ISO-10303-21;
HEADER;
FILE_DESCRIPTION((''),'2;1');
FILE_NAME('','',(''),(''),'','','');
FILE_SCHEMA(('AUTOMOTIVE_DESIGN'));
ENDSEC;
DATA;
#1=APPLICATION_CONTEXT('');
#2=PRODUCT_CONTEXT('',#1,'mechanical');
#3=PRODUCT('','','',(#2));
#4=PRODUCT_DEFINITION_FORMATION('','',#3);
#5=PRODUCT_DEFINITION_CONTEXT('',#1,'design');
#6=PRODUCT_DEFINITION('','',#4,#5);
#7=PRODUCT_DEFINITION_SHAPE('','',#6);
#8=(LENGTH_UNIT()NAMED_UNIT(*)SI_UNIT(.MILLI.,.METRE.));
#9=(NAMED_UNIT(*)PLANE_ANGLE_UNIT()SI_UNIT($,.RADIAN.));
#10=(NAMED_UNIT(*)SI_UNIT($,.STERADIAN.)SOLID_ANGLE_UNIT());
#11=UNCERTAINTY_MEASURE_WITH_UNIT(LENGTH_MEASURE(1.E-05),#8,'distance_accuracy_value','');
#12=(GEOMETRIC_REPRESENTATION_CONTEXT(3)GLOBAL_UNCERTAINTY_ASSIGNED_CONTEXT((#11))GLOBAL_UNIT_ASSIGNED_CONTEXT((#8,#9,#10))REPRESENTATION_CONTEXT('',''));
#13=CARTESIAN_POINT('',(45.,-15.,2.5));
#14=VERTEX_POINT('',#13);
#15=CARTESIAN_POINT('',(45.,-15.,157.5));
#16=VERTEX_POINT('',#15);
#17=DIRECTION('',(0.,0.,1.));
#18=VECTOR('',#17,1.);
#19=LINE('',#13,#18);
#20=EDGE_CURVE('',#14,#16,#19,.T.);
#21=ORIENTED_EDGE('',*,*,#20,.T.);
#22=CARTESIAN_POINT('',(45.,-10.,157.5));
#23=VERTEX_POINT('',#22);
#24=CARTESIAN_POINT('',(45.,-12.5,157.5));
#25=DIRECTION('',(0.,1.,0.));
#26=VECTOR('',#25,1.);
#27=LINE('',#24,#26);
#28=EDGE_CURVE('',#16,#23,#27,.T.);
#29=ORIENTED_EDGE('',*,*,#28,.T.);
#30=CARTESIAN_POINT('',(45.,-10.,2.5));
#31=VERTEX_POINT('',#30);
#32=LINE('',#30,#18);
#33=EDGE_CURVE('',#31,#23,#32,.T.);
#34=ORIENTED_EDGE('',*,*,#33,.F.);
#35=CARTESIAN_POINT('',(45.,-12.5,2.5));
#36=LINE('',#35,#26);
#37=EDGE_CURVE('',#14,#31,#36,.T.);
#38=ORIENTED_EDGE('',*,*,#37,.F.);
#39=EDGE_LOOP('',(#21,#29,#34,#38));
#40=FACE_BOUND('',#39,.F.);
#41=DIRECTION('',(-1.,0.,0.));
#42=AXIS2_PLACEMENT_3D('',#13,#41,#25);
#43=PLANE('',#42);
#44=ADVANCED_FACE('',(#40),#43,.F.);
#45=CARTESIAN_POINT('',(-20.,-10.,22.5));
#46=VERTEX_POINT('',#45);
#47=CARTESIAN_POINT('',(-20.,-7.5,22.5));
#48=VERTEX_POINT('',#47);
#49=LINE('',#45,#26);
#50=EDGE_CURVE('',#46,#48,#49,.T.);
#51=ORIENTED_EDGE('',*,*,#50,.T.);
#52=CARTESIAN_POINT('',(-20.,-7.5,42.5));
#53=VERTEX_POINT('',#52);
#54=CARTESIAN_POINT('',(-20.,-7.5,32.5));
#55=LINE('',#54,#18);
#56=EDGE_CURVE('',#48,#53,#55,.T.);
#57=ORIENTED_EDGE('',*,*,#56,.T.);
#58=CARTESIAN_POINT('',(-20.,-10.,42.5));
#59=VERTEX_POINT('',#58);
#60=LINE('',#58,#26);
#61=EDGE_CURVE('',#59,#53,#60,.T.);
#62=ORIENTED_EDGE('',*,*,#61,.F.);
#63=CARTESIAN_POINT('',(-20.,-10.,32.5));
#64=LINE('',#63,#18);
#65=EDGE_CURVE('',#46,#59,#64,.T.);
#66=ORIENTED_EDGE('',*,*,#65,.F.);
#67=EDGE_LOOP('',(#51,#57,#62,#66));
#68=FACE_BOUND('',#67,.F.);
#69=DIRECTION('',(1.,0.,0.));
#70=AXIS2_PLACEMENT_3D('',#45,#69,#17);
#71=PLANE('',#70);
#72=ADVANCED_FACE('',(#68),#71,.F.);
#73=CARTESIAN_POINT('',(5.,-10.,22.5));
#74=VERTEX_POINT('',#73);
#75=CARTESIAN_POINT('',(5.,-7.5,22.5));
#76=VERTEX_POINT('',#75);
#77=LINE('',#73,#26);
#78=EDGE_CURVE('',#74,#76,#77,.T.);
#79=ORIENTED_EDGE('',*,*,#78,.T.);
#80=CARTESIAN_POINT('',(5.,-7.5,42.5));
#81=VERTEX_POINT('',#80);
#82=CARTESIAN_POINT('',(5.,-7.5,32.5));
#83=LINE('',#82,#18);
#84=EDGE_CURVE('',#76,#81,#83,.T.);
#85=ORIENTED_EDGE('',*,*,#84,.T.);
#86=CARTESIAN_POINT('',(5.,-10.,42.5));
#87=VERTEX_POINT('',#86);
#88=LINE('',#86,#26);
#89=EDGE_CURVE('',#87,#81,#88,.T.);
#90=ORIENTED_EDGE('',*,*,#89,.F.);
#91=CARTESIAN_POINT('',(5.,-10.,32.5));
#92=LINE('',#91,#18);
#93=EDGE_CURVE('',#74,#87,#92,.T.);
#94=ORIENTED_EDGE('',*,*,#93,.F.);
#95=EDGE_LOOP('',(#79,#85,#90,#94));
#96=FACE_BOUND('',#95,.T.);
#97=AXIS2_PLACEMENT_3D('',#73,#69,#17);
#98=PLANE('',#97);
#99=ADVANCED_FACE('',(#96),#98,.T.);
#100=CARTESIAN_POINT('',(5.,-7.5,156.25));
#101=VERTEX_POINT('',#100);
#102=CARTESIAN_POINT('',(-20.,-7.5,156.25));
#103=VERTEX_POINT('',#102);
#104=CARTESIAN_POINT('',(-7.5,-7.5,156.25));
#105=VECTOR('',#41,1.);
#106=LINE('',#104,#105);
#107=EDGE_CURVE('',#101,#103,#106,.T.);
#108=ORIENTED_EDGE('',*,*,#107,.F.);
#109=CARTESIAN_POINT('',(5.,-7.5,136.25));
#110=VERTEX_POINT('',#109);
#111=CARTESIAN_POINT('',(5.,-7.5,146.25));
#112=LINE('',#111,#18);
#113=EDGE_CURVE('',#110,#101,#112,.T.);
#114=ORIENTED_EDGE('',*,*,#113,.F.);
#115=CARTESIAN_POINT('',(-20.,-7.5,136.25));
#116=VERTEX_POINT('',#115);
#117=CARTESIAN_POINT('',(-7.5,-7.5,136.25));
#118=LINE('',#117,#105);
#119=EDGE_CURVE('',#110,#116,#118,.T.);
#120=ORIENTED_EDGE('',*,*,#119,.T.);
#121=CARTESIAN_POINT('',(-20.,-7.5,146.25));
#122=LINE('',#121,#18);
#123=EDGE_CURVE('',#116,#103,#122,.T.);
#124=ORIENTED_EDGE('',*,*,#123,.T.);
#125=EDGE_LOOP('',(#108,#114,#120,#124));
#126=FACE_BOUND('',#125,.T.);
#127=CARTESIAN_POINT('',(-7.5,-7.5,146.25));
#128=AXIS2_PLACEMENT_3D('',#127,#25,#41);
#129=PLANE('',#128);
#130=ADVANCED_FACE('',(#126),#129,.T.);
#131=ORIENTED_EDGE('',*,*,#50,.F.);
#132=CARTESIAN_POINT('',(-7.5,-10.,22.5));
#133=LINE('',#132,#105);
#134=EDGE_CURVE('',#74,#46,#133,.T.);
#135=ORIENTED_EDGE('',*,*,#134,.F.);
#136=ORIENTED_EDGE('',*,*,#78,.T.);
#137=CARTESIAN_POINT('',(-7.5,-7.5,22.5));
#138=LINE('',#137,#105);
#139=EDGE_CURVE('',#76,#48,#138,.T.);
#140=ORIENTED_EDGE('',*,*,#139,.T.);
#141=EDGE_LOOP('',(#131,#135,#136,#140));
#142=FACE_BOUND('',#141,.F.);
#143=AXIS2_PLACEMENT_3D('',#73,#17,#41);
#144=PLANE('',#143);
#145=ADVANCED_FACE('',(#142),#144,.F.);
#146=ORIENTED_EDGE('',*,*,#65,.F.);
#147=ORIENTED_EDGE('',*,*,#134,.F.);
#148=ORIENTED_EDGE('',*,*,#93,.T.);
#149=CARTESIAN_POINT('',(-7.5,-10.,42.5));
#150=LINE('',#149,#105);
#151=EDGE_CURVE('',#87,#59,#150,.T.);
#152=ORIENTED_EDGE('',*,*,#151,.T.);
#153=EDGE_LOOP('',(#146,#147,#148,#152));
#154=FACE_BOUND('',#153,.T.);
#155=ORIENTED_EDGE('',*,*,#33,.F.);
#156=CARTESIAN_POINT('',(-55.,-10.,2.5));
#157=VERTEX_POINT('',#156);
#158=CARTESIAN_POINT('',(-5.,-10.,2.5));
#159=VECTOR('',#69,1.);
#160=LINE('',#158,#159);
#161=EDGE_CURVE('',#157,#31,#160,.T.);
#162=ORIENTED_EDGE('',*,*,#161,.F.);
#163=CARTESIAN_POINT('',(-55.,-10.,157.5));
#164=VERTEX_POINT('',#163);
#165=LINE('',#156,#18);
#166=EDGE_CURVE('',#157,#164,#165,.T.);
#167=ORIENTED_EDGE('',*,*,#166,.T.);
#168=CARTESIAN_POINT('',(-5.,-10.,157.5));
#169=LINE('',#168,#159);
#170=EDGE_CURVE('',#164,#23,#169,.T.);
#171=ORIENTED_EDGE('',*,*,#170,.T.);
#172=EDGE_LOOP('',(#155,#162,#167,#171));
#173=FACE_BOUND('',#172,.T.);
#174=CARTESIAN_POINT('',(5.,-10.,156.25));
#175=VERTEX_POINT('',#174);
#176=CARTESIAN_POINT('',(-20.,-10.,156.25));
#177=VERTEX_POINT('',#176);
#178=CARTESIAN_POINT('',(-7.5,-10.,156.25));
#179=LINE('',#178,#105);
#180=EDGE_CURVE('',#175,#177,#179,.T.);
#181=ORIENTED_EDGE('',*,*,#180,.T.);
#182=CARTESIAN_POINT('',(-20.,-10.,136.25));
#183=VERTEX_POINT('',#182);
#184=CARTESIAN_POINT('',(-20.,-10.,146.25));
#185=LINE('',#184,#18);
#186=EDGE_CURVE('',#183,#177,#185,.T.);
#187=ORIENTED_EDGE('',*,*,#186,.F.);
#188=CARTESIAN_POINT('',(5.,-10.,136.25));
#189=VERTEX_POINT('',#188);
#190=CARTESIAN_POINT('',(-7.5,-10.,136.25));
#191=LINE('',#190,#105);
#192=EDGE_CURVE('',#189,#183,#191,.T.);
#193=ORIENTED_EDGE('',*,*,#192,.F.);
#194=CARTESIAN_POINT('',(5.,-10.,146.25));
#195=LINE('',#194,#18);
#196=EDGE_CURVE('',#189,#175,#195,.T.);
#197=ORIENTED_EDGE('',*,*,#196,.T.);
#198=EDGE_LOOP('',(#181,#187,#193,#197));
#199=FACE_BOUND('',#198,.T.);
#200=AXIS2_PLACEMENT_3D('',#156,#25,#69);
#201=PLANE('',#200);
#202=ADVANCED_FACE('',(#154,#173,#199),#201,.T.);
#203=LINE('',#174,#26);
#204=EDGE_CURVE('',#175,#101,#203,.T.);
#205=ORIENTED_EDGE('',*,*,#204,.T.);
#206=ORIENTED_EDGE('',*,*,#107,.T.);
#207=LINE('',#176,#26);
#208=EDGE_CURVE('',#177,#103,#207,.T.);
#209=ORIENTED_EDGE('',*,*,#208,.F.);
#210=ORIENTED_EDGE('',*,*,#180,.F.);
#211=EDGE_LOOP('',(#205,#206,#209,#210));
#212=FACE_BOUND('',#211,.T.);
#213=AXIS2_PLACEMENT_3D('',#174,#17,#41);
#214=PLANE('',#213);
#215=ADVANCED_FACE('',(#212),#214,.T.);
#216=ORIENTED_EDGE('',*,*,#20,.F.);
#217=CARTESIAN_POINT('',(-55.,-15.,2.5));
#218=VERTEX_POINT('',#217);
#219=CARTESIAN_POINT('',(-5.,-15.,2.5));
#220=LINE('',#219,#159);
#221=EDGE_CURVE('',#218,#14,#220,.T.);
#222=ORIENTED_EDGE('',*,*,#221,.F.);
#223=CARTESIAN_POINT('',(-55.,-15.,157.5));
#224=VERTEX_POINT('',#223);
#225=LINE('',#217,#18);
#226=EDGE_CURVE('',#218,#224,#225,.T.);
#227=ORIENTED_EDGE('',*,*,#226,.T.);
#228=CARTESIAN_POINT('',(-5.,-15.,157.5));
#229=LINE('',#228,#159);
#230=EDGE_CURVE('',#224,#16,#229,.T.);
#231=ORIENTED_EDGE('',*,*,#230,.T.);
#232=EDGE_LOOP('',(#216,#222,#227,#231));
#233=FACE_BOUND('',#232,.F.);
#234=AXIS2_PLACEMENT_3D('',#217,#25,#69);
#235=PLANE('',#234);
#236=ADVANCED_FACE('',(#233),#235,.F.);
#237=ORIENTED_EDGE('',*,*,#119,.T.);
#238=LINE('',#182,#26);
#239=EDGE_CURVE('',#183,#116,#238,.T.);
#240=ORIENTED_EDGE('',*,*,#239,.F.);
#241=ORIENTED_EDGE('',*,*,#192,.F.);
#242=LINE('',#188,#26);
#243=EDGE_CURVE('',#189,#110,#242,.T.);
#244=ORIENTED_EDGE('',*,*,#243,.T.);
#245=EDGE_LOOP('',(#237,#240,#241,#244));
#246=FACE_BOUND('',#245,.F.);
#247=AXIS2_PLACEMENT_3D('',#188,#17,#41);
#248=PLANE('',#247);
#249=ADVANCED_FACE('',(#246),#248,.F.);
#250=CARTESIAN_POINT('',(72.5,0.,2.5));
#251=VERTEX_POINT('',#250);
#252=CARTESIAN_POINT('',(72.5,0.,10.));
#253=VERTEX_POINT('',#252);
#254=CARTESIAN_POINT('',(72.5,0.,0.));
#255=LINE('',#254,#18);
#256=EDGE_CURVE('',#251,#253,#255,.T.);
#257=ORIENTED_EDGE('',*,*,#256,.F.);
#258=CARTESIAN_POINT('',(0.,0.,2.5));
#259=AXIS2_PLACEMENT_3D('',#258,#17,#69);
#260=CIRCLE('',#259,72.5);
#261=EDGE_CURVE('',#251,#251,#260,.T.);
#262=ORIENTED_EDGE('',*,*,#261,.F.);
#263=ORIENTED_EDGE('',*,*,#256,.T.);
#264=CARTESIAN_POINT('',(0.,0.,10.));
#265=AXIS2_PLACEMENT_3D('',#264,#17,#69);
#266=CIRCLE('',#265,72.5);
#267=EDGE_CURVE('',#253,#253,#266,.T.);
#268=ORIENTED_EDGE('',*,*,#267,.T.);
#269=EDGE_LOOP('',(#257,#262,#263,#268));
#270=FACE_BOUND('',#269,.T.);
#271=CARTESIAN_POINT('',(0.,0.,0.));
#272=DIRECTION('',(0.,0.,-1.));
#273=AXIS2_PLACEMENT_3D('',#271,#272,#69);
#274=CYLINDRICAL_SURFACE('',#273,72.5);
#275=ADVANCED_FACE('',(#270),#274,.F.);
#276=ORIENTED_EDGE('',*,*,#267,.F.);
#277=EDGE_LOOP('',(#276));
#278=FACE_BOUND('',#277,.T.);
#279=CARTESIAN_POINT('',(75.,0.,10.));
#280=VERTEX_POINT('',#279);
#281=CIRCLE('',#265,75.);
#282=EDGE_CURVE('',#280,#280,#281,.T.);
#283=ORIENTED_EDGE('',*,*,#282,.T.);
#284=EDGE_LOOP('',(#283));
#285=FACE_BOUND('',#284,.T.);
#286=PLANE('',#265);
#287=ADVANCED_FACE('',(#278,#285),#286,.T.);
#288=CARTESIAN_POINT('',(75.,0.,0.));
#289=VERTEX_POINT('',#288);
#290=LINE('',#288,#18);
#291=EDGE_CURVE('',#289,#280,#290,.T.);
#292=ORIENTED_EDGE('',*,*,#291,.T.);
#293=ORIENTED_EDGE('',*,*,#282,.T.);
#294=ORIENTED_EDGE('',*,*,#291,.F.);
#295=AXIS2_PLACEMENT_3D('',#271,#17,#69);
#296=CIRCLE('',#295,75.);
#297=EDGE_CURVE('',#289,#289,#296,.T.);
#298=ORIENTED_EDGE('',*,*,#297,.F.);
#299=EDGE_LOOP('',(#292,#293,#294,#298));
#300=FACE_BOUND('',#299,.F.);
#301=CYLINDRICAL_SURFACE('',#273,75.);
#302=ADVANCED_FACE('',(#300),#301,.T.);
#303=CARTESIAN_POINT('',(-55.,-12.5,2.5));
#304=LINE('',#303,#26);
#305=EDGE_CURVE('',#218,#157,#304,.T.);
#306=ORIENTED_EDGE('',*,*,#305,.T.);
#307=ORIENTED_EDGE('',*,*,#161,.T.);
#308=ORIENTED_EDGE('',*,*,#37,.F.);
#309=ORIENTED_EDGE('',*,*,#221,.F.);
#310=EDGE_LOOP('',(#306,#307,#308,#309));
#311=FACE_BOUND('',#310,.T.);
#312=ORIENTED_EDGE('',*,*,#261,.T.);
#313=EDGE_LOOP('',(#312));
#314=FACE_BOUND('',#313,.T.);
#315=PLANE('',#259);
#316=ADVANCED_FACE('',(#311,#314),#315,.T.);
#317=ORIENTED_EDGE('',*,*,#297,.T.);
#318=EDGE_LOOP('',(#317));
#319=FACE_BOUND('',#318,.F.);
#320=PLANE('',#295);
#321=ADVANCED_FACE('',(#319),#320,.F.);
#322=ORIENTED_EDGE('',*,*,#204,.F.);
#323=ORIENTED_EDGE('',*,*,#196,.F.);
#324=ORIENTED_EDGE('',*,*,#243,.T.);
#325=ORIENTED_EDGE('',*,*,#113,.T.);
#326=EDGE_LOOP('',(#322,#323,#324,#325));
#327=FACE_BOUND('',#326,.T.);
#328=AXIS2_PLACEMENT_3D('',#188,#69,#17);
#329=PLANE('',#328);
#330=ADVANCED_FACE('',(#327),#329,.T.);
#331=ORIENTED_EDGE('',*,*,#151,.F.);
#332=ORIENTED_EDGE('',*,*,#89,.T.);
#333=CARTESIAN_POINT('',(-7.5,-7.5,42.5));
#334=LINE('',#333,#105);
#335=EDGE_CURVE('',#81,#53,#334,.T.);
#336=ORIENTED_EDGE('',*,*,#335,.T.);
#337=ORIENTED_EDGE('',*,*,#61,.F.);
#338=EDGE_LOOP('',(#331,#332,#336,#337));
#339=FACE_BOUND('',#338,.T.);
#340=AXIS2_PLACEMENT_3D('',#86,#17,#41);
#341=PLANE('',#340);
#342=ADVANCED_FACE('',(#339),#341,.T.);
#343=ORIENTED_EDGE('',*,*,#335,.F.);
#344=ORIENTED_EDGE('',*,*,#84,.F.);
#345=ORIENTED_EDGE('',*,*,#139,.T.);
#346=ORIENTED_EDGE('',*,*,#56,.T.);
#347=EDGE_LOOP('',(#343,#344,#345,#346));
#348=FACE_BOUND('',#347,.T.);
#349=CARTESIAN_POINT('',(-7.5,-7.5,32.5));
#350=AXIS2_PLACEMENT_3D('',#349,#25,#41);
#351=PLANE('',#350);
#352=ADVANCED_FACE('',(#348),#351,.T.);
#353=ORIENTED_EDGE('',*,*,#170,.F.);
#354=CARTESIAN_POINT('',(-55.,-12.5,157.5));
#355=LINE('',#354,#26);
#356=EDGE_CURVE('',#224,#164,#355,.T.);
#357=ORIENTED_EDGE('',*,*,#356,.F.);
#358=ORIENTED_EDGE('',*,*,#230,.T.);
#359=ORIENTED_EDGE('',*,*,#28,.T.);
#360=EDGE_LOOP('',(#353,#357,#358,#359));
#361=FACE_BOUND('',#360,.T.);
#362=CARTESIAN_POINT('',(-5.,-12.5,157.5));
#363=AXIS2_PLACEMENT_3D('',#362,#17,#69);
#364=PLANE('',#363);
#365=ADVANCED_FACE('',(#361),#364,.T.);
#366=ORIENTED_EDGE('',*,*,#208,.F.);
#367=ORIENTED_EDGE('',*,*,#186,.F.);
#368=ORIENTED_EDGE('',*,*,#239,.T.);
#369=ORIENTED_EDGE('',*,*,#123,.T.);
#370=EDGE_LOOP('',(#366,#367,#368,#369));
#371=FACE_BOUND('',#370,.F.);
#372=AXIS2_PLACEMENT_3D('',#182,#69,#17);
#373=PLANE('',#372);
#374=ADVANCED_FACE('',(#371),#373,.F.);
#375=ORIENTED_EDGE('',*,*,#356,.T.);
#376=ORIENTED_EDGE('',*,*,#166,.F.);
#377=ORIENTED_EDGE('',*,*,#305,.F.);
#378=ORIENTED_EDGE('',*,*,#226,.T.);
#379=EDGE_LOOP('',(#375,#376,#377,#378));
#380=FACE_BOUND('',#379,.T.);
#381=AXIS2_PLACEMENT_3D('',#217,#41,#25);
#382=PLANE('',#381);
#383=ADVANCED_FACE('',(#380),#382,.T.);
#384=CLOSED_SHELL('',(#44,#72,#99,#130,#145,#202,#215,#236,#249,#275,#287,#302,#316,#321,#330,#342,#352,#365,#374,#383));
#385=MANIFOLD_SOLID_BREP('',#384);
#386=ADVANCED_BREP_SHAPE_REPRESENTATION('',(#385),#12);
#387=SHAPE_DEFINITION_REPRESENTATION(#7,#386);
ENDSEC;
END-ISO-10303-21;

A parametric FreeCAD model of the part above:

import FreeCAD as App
import Part
import Sketcher

V = App.Vector

doc = App.newDocument("Part")
body = doc.addObject("PartDesign::Body", "Body")

# Sketch on XY plane
sketch1 = doc.addObject("Sketcher::SketchObject", "Sketch")
body.addObject(sketch1)
sketch1.AttachmentSupport = (doc.XY_Plane, [""])
sketch1.MapMode = "FlatFace"
sketch1.addGeometry(Part.Circle(V(0, 0, 0), V(0, 0, 1), 75), False)
sketch1.addGeometry(Part.Circle(V(0, 0, 0), V(0, 0, 1), 72), False)
sketch1.addConstraint(Sketcher.Constraint("Coincident", 0, 3, -1, 1))
sketch1.addConstraint(Sketcher.Constraint("Coincident", 1, 3, -1, 1))
sketch1.addConstraint(Sketcher.Constraint("Diameter", 0, 150.0))
sketch1.addConstraint(Sketcher.Constraint("Diameter", 1, 145.0))
pad1 = doc.addObject("PartDesign::Pad", "Pad")
body.addObject(pad1)
pad1.Profile = sketch1
pad1.Length = 10

# Sketch on XY plane
sketch2 = doc.addObject("Sketcher::SketchObject", "Sketch001")
body.addObject(sketch2)
sketch2.AttachmentSupport = (doc.XY_Plane, [""])
sketch2.MapMode = "FlatFace"
sketch2.addGeometry(Part.Circle(V(0, 0, 0), V(0, 0, 1), 72), False)
sketch2.addConstraint(Sketcher.Constraint("Coincident", 0, 3, -1, 1))
sketch2.addConstraint(Sketcher.Constraint("Diameter", 0, 145.0))
pad2 = doc.addObject("PartDesign::Pad", "Pad001")
body.addObject(pad2)
pad2.Profile = sketch2
pad2.Length = 2.5

# Sketch on XY plane
sketch3 = doc.addObject("Sketcher::SketchObject", "Sketch002")
body.addObject(sketch3)
sketch3.AttachmentSupport = (doc.XY_Plane, [""])
sketch3.MapMode = "FlatFace"
sketch3.AttachmentOffset = App.Placement(V(0, 0, 2.5), App.Rotation())
sketch3.addGeometry(Part.LineSegment(V(-55, -10, 0), V(-55, -15, 0)), False)
sketch3.addGeometry(Part.LineSegment(V(-55, -15, 0), V(45, -15, 0)), False)
sketch3.addGeometry(Part.LineSegment(V(45, -15, 0), V(45, -10, 0)), False)
sketch3.addGeometry(Part.LineSegment(V(45, -10, 0), V(-55, -10, 0)), False)
sketch3.addConstraint(Sketcher.Constraint("Coincident", 0, 2, 1, 1))
sketch3.addConstraint(Sketcher.Constraint("Coincident", 1, 2, 2, 1))
sketch3.addConstraint(Sketcher.Constraint("Coincident", 2, 2, 3, 1))
sketch3.addConstraint(Sketcher.Constraint("Coincident", 3, 2, 0, 1))
sketch3.addConstraint(Sketcher.Constraint("Vertical", 0))
sketch3.addConstraint(Sketcher.Constraint("Horizontal", 1))
sketch3.addConstraint(Sketcher.Constraint("Vertical", 2))
sketch3.addConstraint(Sketcher.Constraint("Horizontal", 3))
sketch3.addConstraint(Sketcher.Constraint("DistanceX", 1, 1, 1, 2, 100.0))
sketch3.addConstraint(Sketcher.Constraint("DistanceY", 0, 2, 0, 1, 5.0))
sketch3.addConstraint(Sketcher.Constraint("DistanceX", 0, 2, -1, 1, 55.0))
sketch3.addConstraint(Sketcher.Constraint("DistanceY", 0, 2, -1, 1, 15.0))
pad3 = doc.addObject("PartDesign::Pad", "Pad002")
body.addObject(pad3)
pad3.Profile = sketch3
pad3.Length = 155

# Sketch on XZ plane
sketch4 = doc.addObject("Sketcher::SketchObject", "Sketch003")
body.addObject(sketch4)
sketch4.AttachmentSupport = (doc.XZ_Plane, [""])
sketch4.MapMode = "FlatFace"
sketch4.AttachmentOffset = App.Placement(V(0, 0, 10), App.Rotation())
sketch4.addGeometry(Part.LineSegment(V(5, 42, 0), V(5, 22, 0)), False)
sketch4.addGeometry(Part.LineSegment(V(5, 22, 0), V(-20, 22, 0)), False)
sketch4.addGeometry(Part.LineSegment(V(-20, 22, 0), V(-20, 42, 0)), False)
sketch4.addGeometry(Part.LineSegment(V(-20, 42, 0), V(5, 42, 0)), False)
sketch4.addConstraint(Sketcher.Constraint("Coincident", 0, 2, 1, 1))
sketch4.addConstraint(Sketcher.Constraint("Coincident", 1, 2, 2, 1))
sketch4.addConstraint(Sketcher.Constraint("Coincident", 2, 2, 3, 1))
sketch4.addConstraint(Sketcher.Constraint("Coincident", 3, 2, 0, 1))
sketch4.addConstraint(Sketcher.Constraint("Vertical", 0))
sketch4.addConstraint(Sketcher.Constraint("Horizontal", 1))
sketch4.addConstraint(Sketcher.Constraint("Vertical", 2))
sketch4.addConstraint(Sketcher.Constraint("Horizontal", 3))
sketch4.addConstraint(Sketcher.Constraint("DistanceX", 1, 2, 1, 1, 25.0))
sketch4.addConstraint(Sketcher.Constraint("DistanceY", 0, 2, 0, 1, 20.0))
sketch4.addConstraint(Sketcher.Constraint("DistanceX", -1, 1, 0, 2, 5.0))
sketch4.addConstraint(Sketcher.Constraint("DistanceY", -1, 1, 0, 2, 22.5))
pad4 = doc.addObject("PartDesign::Pad", "Pad003")
body.addObject(pad4)
pad4.Profile = sketch4
pad4.Length = 2.5
pad4.Reversed = True

# Sketch on XZ plane
sketch5 = doc.addObject("Sketcher::SketchObject", "Sketch004")
body.addObject(sketch5)
sketch5.AttachmentSupport = (doc.XZ_Plane, [""])
sketch5.MapMode = "FlatFace"
sketch5.AttachmentOffset = App.Placement(V(0, 0, 10), App.Rotation())
sketch5.addGeometry(Part.LineSegment(V(5, 156, 0), V(5, 136, 0)), False)
sketch5.addGeometry(Part.LineSegment(V(5, 136, 0), V(-20, 136, 0)), False)
sketch5.addGeometry(Part.LineSegment(V(-20, 136, 0), V(-20, 156, 0)), False)
sketch5.addGeometry(Part.LineSegment(V(-20, 156, 0), V(5, 156, 0)), False)
sketch5.addConstraint(Sketcher.Constraint("Coincident", 0, 2, 1, 1))
sketch5.addConstraint(Sketcher.Constraint("Coincident", 1, 2, 2, 1))
sketch5.addConstraint(Sketcher.Constraint("Coincident", 2, 2, 3, 1))
sketch5.addConstraint(Sketcher.Constraint("Coincident", 3, 2, 0, 1))
sketch5.addConstraint(Sketcher.Constraint("Vertical", 0))
sketch5.addConstraint(Sketcher.Constraint("Horizontal", 1))
sketch5.addConstraint(Sketcher.Constraint("Vertical", 2))
sketch5.addConstraint(Sketcher.Constraint("Horizontal", 3))
sketch5.addConstraint(Sketcher.Constraint("DistanceX", 1, 2, 1, 1, 25.0))
sketch5.addConstraint(Sketcher.Constraint("DistanceY", 0, 2, 0, 1, 20.0))
sketch5.addConstraint(Sketcher.Constraint("DistanceX", -1, 1, 0, 2, 5.0))
sketch5.addConstraint(Sketcher.Constraint("DistanceY", -1, 1, 0, 2, 136.25))
pad5 = doc.addObject("PartDesign::Pad", "Pad004")
body.addObject(pad5)
pad5.Profile = sketch5
pad5.Length = 2.5
pad5.Reversed = True

doc.recompute()
